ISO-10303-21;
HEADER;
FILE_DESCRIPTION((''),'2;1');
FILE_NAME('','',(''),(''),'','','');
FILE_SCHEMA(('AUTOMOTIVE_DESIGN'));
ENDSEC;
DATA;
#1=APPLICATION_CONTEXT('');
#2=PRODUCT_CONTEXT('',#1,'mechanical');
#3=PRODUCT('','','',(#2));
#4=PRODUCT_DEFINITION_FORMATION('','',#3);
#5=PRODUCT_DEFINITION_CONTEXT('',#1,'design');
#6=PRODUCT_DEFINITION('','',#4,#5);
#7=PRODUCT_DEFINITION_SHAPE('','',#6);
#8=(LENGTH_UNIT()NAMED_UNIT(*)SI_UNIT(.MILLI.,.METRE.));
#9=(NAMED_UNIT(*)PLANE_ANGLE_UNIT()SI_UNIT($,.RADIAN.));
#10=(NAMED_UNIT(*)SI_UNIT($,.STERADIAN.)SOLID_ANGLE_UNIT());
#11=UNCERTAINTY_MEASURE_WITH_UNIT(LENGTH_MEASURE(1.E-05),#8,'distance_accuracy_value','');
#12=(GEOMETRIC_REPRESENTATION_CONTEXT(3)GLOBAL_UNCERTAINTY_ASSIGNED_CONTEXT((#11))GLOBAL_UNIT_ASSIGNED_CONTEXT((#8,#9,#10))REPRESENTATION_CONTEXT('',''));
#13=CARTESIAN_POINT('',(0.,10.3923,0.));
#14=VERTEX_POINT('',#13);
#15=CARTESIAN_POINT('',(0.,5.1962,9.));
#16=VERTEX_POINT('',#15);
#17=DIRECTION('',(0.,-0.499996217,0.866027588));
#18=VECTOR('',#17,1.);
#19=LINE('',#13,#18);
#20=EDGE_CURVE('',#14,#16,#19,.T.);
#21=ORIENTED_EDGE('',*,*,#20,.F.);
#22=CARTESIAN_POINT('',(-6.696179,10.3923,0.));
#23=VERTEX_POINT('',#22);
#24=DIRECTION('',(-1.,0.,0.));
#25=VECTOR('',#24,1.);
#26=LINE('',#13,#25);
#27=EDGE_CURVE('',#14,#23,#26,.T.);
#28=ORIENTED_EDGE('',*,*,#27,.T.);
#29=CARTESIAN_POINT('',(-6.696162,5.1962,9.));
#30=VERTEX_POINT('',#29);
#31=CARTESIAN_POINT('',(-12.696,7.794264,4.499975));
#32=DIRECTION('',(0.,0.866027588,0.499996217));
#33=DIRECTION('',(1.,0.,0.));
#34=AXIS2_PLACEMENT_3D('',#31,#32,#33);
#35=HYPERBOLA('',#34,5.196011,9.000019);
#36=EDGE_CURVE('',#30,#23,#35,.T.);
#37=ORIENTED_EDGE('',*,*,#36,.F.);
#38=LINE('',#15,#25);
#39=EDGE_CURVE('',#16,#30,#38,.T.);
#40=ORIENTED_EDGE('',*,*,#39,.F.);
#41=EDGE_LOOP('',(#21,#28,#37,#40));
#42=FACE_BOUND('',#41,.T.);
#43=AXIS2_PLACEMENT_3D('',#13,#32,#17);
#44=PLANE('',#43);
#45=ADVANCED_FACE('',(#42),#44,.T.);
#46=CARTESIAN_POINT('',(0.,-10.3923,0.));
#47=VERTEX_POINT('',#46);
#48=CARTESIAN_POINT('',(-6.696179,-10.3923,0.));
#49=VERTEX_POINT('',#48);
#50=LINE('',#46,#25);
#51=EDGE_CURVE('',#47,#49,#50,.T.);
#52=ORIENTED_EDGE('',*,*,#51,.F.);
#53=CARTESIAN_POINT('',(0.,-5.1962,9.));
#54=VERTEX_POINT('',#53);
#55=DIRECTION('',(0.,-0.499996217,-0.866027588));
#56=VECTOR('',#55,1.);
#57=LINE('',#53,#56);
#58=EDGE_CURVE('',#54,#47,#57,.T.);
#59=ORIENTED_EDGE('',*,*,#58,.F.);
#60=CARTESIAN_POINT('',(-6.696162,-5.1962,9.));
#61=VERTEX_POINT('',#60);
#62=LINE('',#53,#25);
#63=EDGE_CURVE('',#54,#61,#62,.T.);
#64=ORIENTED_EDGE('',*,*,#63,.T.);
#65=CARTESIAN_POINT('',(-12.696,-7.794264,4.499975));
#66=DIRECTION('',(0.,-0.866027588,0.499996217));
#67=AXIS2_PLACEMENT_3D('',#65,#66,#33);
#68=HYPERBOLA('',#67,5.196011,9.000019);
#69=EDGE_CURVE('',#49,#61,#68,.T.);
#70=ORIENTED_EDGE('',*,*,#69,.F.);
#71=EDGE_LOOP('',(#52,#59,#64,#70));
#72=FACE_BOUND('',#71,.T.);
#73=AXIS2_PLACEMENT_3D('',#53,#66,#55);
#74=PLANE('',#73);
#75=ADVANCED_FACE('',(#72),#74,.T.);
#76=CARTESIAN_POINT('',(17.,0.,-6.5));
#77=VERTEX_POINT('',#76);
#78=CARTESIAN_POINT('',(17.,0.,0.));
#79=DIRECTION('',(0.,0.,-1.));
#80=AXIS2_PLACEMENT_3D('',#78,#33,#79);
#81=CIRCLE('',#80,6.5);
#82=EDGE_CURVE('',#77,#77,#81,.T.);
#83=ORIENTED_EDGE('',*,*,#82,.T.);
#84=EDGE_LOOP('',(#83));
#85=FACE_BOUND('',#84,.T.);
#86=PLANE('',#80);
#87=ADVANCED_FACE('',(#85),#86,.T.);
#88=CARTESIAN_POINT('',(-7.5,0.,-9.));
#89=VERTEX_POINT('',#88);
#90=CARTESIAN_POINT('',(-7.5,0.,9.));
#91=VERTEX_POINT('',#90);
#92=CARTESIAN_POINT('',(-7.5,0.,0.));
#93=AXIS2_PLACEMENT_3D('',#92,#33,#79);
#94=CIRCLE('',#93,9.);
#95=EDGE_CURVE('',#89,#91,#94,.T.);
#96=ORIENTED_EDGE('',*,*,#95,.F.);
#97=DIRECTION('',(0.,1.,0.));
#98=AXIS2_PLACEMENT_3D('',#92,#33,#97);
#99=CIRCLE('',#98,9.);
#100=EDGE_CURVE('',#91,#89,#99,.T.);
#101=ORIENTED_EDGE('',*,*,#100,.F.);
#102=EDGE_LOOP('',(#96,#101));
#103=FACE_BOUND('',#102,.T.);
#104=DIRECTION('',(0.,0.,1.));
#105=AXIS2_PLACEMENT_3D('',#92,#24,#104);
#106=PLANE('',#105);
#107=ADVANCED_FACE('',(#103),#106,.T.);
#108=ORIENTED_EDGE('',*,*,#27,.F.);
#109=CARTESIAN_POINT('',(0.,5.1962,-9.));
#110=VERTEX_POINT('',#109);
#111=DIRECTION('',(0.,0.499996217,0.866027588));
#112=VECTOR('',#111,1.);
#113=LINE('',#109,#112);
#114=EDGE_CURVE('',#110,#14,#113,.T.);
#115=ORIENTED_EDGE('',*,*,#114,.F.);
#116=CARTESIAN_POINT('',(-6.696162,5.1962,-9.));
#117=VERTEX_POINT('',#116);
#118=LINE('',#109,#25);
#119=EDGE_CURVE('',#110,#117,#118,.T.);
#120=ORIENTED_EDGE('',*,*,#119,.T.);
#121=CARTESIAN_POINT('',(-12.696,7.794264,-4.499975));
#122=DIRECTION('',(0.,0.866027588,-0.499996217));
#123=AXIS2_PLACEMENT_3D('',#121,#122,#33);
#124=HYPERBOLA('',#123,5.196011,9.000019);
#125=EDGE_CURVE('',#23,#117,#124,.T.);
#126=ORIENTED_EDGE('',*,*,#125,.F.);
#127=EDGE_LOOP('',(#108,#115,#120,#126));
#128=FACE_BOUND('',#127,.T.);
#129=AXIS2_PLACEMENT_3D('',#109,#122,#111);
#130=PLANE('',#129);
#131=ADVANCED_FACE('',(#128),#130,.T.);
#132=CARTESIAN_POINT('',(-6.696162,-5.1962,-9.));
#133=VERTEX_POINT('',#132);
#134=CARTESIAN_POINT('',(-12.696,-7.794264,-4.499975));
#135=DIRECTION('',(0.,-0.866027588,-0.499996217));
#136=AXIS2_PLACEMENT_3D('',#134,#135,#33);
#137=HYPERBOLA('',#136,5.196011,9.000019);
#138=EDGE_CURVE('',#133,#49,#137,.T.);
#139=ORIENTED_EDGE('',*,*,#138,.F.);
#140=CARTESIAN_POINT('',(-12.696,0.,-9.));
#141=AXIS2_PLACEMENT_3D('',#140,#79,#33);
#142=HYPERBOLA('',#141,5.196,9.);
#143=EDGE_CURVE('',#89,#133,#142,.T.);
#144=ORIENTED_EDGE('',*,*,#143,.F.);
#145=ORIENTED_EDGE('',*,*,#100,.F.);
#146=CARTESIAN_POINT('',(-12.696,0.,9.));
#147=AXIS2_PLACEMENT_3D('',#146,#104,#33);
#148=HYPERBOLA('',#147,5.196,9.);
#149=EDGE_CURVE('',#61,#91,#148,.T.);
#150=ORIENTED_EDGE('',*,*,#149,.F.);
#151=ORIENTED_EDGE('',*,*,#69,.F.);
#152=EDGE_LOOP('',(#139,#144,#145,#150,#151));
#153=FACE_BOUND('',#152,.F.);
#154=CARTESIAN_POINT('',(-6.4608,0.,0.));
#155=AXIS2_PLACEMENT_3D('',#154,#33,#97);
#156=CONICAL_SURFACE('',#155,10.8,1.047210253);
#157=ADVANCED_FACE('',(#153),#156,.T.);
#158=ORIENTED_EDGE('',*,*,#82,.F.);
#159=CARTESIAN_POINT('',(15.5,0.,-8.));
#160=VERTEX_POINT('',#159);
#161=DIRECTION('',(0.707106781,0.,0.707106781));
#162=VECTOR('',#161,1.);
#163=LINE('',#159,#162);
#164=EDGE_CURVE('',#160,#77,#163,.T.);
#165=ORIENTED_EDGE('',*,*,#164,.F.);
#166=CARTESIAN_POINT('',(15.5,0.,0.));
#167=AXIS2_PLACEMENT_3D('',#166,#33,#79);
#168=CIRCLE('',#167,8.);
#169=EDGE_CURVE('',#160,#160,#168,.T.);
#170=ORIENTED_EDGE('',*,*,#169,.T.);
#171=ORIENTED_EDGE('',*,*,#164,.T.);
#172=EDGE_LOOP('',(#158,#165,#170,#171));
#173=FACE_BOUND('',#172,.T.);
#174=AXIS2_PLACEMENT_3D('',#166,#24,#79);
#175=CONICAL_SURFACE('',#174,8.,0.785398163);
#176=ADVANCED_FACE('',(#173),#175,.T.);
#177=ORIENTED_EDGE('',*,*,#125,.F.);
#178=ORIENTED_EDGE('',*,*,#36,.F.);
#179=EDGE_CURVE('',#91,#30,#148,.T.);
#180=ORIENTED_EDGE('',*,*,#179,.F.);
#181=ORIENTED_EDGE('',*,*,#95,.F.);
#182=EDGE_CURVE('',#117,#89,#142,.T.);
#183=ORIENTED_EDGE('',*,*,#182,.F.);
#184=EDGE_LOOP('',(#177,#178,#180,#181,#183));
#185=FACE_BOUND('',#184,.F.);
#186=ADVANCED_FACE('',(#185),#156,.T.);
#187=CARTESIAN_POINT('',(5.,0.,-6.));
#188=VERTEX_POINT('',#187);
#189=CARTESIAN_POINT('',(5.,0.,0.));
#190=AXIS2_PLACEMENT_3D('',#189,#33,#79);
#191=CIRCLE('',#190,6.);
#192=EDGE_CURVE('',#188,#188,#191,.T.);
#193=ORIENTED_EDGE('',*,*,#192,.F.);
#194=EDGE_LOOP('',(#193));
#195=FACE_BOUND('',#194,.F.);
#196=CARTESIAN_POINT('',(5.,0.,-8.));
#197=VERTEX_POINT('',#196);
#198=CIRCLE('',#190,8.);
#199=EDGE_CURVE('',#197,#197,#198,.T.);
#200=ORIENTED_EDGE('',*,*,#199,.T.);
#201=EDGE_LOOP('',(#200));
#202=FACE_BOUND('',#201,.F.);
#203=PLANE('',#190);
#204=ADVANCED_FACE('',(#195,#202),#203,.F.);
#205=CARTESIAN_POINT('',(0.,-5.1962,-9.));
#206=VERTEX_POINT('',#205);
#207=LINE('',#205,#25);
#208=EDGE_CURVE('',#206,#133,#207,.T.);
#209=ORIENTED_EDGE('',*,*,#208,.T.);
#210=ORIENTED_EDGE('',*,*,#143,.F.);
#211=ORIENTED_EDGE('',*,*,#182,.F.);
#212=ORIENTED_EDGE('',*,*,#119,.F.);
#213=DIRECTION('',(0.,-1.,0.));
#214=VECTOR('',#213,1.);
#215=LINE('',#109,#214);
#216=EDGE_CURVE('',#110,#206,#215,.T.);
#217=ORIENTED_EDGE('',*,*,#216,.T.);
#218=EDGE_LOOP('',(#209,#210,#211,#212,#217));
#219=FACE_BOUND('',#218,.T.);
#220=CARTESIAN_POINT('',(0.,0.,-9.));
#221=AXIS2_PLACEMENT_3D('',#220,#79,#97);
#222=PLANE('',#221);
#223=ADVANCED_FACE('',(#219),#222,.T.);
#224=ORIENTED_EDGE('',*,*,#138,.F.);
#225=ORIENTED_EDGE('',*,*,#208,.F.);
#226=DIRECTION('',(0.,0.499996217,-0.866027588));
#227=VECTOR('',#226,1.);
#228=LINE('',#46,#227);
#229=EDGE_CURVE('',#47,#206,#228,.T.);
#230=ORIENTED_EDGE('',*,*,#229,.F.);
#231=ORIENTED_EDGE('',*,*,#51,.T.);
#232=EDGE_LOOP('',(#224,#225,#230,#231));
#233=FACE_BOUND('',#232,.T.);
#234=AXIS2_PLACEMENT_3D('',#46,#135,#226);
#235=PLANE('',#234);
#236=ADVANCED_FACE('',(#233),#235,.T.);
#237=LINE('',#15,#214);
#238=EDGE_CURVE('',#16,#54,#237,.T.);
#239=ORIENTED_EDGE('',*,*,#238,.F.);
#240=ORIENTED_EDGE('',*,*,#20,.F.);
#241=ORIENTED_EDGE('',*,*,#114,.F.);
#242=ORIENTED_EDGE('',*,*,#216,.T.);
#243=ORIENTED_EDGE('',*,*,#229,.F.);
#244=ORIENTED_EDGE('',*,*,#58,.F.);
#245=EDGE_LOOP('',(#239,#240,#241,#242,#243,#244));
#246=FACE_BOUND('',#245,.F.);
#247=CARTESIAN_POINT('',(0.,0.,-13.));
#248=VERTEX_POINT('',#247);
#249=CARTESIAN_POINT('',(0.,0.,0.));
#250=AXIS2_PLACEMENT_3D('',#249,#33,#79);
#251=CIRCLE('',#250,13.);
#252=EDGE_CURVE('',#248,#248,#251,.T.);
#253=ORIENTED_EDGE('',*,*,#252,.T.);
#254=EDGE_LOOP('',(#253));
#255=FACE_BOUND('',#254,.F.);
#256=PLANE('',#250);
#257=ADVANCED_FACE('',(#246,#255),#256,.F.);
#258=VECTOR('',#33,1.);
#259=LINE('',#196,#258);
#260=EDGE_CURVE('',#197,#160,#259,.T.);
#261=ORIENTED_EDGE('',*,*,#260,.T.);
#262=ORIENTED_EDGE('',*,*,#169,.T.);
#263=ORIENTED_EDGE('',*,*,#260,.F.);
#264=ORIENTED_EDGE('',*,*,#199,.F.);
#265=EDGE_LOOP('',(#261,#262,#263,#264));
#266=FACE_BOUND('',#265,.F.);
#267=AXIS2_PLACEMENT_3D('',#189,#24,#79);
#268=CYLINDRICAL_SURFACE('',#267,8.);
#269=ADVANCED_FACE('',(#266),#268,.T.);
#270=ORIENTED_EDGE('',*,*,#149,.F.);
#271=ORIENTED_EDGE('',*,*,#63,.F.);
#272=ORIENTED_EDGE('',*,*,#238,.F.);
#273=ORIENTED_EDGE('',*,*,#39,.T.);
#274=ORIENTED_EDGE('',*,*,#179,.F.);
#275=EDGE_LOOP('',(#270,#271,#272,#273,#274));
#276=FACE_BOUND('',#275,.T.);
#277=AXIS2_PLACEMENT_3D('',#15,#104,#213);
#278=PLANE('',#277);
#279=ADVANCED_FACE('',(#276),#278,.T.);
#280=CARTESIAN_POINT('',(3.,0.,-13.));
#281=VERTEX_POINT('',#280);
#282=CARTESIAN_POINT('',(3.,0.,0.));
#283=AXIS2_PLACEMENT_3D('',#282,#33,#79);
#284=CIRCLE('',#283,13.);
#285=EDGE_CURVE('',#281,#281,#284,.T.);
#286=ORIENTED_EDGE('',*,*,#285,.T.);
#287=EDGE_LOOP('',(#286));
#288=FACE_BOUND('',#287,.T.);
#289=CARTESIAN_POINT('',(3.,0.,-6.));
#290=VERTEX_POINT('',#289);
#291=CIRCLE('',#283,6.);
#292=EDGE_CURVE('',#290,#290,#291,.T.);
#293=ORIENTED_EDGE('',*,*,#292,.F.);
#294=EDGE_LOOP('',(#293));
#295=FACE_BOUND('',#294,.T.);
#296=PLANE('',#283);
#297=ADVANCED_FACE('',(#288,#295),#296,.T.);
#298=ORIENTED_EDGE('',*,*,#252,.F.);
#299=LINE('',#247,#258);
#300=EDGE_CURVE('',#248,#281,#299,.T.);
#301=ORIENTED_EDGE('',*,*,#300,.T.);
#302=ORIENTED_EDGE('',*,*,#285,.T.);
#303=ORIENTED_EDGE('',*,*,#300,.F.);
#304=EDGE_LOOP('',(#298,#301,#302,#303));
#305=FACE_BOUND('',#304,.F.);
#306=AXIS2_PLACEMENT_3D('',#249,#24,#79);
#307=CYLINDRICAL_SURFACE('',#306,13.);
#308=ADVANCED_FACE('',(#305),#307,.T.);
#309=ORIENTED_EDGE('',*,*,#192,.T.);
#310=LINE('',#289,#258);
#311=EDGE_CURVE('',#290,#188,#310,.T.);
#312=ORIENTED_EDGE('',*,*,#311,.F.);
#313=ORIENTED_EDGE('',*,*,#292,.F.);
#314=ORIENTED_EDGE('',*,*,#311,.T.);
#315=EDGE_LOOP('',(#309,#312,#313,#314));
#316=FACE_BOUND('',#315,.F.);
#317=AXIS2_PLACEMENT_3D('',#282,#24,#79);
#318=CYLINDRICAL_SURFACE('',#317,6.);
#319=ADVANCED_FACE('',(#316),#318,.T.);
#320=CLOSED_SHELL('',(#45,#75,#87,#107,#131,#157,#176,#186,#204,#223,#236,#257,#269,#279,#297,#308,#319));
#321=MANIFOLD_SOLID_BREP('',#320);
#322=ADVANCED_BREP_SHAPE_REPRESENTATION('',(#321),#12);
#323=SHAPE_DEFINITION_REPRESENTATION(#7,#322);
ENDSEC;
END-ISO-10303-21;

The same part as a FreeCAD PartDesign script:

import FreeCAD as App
import Part
import Sketcher
from FreeCAD import Vector
Q = App.Units.Quantity


def edges_at(feature, points):
    """Names of the edges that pass closest to the given points."""
    edges = feature.Shape.Edges
    near = lambda p: min(range(len(edges)), key=lambda i: edges[i].distToShape(Part.Vertex(*p))[0])
    return sorted({f"Edge{near(p) + 1}" for p in points})


def add_polygon(sketch, points):
    """Adds a closed chain of lines whose ends are joined by coincident constraints."""
    first, n = sketch.GeometryCount, len(points)
    for a, b in zip(points, points[1:] + points[:1]):
        sketch.addGeometry(Part.LineSegment(App.Vector(*a, 0), App.Vector(*b, 0)), False)
    for i in range(n):
        sketch.addConstraint(Sketcher.Constraint("Coincident", first + i, 2, first + (i + 1) % n, 1))

doc = App.newDocument("Part")
params = doc.addObject("Spreadsheet::Sheet", "Params")
for row, (alias, value) in enumerate([
    ("pad1_length", "7.5 mm"),
    ("sketch2_height", "1.8 mm"),
    ("groove_angle", "360 deg"),
    ("sketch3_diameter", "26 mm"),
    ("pad2_length", "3 mm"),
    ("sketch4_diameter", "12 mm"),
    ("pad3_length", "2 mm"),
    ("sketch5_diameter", "16 mm"),
    ("pad4_length", "12 mm"),
    ("chamfer_size", "1.5 mm"),
], start=1):
    params.set(f"A{row}", alias)
    params.set(f"B{row}", "=" + value)
    params.setAlias(f"B{row}", alias)

body = doc.addObject("PartDesign::Body", "Body")

sketch1 = body.newObject("Sketcher::SketchObject", "Sketch")
sketch1.AttachmentSupport = (doc.getObject("YZ_Plane"), [""])
sketch1.MapMode = "FlatFace"
add_polygon(sketch1, [(5, -9), (-5, -9), (-10, 0), (-5, 9), (5, 9), (10, 0)])
sketch1.addConstraint([
    Sketcher.Constraint("Horizontal", 0),
    Sketcher.Constraint("Horizontal", 3),
    Sketcher.Constraint("Symmetric", 0, 2, 3, 2, -1, 1),
    Sketcher.Constraint("Symmetric", 1, 2, 4, 2, -1, 1),
    Sketcher.Constraint("PointOnObject", 1, 2, -1),
    Sketcher.Constraint("Parallel", 2, 5),
    Sketcher.Constraint("Vertical", 0, 2, 2, 2),
    Sketcher.Constraint("DistanceY", 0, 2, 2, 2, Q("18 mm")),
    Sketcher.Constraint("Angle", 1, Q("119.9997 deg")),
    Sketcher.Constraint("DistanceX", 0, 2, 0, 1, Q("10.3924 mm")),
])
pad1 = body.newObject("PartDesign::Pad", "Pad")
pad1.Profile = sketch1
pad1.setExpression("Length", "Params.pad1_length")
pad1.Reversed = True

sketch2 = body.newObject("Sketcher::SketchObject", "Sketch001")
sketch2.AttachmentSupport = (doc.getObject("XY_Plane"), [""])
sketch2.MapMode = "FlatFace"
add_polygon(sketch2, [(-7.5, 9), (-6.5, 10.8), (-7.5, 10.8)])
sketch2.addConstraint([
    Sketcher.Constraint("Horizontal", 1),
    Sketcher.Constraint("Vertical", 2),
    Sketcher.Constraint("DistanceX", 1, 2, -1, 1, Q("7.5 mm")),
    Sketcher.Constraint("Angle", 0, Q("60.0007 deg")),
    Sketcher.Constraint("DistanceY", 2, 2, 2, 1, Q("1.8 mm")),
    Sketcher.Constraint("DistanceY", -1, 1, 2, 2, Q("9 mm")),
])
sketch2.setExpression("Constraints[7]", "Params.sketch2_height")
groove = body.newObject("PartDesign::Groove", "Groove")
groove.Profile = sketch2
groove.ReferenceAxis = (sketch2, ["H_Axis"])
groove.setExpression("Angle", "Params.groove_angle")

sketch3 = body.newObject("Sketcher::SketchObject", "Sketch002")
sketch3.AttachmentSupport = (doc.getObject("YZ_Plane"), [""])
sketch3.MapMode = "FlatFace"
sketch3.addGeometry(Part.Circle(Vector(0, 0, 0), Vector(0, 0, 1), 13), False)
sketch3.addConstraint([
    Sketcher.Constraint("Coincident", 0, 3, -1, 1),
    Sketcher.Constraint("Diameter", 0, Q("26 mm")),
])
sketch3.setExpression("Constraints[1]", "Params.sketch3_diameter")
pad2 = body.newObject("PartDesign::Pad", "Pad001")
pad2.Profile = sketch3
pad2.setExpression("Length", "Params.pad2_length")

sketch4 = body.newObject("Sketcher::SketchObject", "Sketch003")
sketch4.AttachmentSupport = (doc.getObject("YZ_Plane"), [""])
sketch4.MapMode = "FlatFace"
sketch4.AttachmentOffset = App.Placement(Vector(0, 0, 3), App.Rotation())
sketch4.addGeometry(Part.Circle(Vector(0, 0, 0), Vector(0, 0, 1), 6), False)
sketch4.addConstraint([
    Sketcher.Constraint("Coincident", 0, 3, -1, 1),
    Sketcher.Constraint("Diameter", 0, Q("12 mm")),
])
sketch4.setExpression("Constraints[1]", "Params.sketch4_diameter")
pad3 = body.newObject("PartDesign::Pad", "Pad002")
pad3.Profile = sketch4
pad3.setExpression("Length", "Params.pad3_length")

sketch5 = body.newObject("Sketcher::SketchObject", "Sketch004")
sketch5.AttachmentSupport = (doc.getObject("YZ_Plane"), [""])
sketch5.MapMode = "FlatFace"
sketch5.AttachmentOffset = App.Placement(Vector(0, 0, 5), App.Rotation())
sketch5.addGeometry(Part.Circle(Vector(0, 0, 0), Vector(0, 0, 1), 8), False)
sketch5.addConstraint([
    Sketcher.Constraint("Coincident", 0, 3, -1, 1),
    Sketcher.Constraint("Diameter", 0, Q("16 mm")),
])
sketch5.setExpression("Constraints[1]", "Params.sketch5_diameter")
pad4 = body.newObject("PartDesign::Pad", "Pad003")
pad4.Profile = sketch5
pad4.setExpression("Length", "Params.pad4_length")
doc.recompute()

chamfer = body.newObject("PartDesign::Chamfer", "Chamfer")
chamfer.Base = (pad4, edges_at(pad4, [(17, 0, 8)]))
chamfer.setExpression("Size", "Params.chamfer_size")

doc.recompute()
